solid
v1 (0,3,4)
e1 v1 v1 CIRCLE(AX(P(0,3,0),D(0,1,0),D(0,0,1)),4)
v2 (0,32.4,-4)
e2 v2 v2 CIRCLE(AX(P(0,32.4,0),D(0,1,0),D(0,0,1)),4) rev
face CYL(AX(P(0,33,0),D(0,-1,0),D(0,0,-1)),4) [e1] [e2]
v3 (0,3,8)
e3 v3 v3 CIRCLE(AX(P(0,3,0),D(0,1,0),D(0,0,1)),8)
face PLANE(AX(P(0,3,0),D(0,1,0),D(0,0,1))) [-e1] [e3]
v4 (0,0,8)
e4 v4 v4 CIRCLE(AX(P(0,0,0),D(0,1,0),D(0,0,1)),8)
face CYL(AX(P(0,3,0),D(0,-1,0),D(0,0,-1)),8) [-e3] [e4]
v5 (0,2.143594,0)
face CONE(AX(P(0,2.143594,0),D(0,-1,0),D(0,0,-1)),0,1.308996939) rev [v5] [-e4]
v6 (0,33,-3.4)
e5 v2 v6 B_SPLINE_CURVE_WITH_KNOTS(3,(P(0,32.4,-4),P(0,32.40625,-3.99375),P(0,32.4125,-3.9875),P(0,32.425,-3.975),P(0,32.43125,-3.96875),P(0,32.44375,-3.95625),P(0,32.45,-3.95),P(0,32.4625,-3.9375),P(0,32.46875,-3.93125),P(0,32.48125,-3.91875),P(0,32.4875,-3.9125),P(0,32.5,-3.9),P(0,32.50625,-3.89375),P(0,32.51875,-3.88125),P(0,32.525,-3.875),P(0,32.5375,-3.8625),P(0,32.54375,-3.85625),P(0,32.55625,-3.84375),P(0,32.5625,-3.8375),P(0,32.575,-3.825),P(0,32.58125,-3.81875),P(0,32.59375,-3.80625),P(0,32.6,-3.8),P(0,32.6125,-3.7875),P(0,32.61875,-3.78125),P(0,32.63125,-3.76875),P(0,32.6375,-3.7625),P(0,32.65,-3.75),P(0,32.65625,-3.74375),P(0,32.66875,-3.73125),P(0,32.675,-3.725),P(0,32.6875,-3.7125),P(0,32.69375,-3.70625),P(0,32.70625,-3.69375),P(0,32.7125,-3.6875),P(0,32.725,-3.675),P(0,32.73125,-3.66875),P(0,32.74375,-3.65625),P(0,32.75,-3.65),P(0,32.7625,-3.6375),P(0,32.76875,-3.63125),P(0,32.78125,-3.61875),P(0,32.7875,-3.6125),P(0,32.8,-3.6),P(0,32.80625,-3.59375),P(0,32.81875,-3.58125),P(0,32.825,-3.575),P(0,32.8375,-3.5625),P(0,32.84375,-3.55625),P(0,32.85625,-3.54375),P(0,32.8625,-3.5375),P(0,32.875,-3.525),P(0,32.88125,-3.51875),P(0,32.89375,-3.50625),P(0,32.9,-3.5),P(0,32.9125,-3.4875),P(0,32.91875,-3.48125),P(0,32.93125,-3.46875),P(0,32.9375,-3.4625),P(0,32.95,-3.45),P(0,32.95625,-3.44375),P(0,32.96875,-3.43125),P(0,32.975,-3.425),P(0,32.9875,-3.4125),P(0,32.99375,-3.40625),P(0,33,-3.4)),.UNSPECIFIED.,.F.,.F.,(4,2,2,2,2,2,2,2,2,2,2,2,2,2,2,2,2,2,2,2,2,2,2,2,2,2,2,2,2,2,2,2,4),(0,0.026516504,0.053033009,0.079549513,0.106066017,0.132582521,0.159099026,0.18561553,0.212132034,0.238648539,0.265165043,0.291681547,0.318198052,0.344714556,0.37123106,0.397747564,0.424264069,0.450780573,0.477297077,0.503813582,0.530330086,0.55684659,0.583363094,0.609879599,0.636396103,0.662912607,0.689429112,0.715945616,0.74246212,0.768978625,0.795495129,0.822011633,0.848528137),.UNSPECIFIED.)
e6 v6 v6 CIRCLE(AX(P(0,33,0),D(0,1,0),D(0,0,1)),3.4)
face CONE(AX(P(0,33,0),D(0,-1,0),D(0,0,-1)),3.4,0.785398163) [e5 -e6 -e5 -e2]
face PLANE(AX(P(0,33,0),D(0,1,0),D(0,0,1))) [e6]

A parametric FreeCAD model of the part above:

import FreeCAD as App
import Part
import Sketcher
Q = App.Units.Quantity


def edges_at(feature, points):
    """Names of the edges that pass closest to the given points."""
    edges = feature.Shape.Edges
    near = lambda p: min(range(len(edges)), key=lambda i: edges[i].distToShape(Part.Vertex(*p))[0])
    return sorted({f"Edge{near(p) + 1}" for p in points})


def add_polygon(sketch, points):
    """Adds a closed chain of lines whose ends are joined by coincident constraints."""
    first, n = sketch.GeometryCount, len(points)
    for a, b in zip(points, points[1:] + points[:1]):
        sketch.addGeometry(Part.LineSegment(App.Vector(*a, 0), App.Vector(*b, 0)), False)
    for i in range(n):
        sketch.addConstraint(Sketcher.Constraint("Coincident", first + i, 2, first + (i + 1) % n, 1))

doc = App.newDocument("Part")
body = doc.addObject("PartDesign::Body", "Body")

# Sketch on XZ plane
sketch1 = doc.addObject("Sketcher::SketchObject", "Sketch")
body.addObject(sketch1)
sketch1.AttachmentSupport = (doc.XZ_Plane, [""])
sketch1.MapMode = "FlatFace"
sketch1.addGeometry(Part.Circle(App.Vector(0, 0, 0), App.Vector(0, 0, 1), 8), False)
sketch1.addConstraint([
    Sketcher.Constraint("Coincident", 0, 3, -1, 1),
    Sketcher.Constraint("Diameter", 0, 16.0),
])
pad1 = doc.addObject("PartDesign::Pad", "Pad")
body.addObject(pad1)
pad1.Profile = sketch1
pad1.Length = 3
pad1.Reversed = True

# Sketch on XZ plane
sketch2 = doc.addObject("Sketcher::SketchObject", "Sketch001")
body.addObject(sketch2)
sketch2.AttachmentSupport = (doc.XZ_Plane, [""])
sketch2.MapMode = "FlatFace"
sketch2.AttachmentOffset = App.Placement(App.Vector(0, 0, -3), App.Rotation())
sketch2.addGeometry(Part.Circle(App.Vector(0, 0, 0), App.Vector(0, 0, 1), 4), False)
sketch2.addConstraint([
    Sketcher.Constraint("Coincident", 0, 3, -1, 1),
    Sketcher.Constraint("Diameter", 0, 8.0),
])
pad2 = doc.addObject("PartDesign::Pad", "Pad001")
body.addObject(pad2)
pad2.Profile = sketch2
pad2.Length = 30
pad2.Reversed = True

# Sketch on YZ plane
sketch3 = doc.addObject("Sketcher::SketchObject", "Sketch002")
body.addObject(sketch3)
sketch3.AttachmentSupport = (doc.YZ_Plane, [""])
sketch3.MapMode = "FlatFace"
add_polygon(sketch3, [(2.1, 0), (0, 8), (0, 0)])  # lines 0-2
sketch3.addConstraint([
    Sketcher.Constraint("Vertical", 1),
    Sketcher.Constraint("Horizontal", 2),
    Sketcher.Constraint("Coincident", 1, 2, -1, 1),
    Sketcher.Constraint("DistanceY", 1, 2, 1, 1, 8.0),
    Sketcher.Constraint("Angle", 0, Q("105 deg")),
])
groove = doc.addObject("PartDesign::Groove", "Groove")
body.addObject(groove)
groove.Profile = sketch3
groove.ReferenceAxis = (sketch3, ["H_Axis"])
groove.Angle = 360
doc.recompute()

chamfer = doc.addObject("PartDesign::Chamfer", "Chamfer")
body.addObject(chamfer)
chamfer.Base = (groove, edges_at(groove, [(0, 33, -4)]))
chamfer.Size = 0.6

doc.recompute()
